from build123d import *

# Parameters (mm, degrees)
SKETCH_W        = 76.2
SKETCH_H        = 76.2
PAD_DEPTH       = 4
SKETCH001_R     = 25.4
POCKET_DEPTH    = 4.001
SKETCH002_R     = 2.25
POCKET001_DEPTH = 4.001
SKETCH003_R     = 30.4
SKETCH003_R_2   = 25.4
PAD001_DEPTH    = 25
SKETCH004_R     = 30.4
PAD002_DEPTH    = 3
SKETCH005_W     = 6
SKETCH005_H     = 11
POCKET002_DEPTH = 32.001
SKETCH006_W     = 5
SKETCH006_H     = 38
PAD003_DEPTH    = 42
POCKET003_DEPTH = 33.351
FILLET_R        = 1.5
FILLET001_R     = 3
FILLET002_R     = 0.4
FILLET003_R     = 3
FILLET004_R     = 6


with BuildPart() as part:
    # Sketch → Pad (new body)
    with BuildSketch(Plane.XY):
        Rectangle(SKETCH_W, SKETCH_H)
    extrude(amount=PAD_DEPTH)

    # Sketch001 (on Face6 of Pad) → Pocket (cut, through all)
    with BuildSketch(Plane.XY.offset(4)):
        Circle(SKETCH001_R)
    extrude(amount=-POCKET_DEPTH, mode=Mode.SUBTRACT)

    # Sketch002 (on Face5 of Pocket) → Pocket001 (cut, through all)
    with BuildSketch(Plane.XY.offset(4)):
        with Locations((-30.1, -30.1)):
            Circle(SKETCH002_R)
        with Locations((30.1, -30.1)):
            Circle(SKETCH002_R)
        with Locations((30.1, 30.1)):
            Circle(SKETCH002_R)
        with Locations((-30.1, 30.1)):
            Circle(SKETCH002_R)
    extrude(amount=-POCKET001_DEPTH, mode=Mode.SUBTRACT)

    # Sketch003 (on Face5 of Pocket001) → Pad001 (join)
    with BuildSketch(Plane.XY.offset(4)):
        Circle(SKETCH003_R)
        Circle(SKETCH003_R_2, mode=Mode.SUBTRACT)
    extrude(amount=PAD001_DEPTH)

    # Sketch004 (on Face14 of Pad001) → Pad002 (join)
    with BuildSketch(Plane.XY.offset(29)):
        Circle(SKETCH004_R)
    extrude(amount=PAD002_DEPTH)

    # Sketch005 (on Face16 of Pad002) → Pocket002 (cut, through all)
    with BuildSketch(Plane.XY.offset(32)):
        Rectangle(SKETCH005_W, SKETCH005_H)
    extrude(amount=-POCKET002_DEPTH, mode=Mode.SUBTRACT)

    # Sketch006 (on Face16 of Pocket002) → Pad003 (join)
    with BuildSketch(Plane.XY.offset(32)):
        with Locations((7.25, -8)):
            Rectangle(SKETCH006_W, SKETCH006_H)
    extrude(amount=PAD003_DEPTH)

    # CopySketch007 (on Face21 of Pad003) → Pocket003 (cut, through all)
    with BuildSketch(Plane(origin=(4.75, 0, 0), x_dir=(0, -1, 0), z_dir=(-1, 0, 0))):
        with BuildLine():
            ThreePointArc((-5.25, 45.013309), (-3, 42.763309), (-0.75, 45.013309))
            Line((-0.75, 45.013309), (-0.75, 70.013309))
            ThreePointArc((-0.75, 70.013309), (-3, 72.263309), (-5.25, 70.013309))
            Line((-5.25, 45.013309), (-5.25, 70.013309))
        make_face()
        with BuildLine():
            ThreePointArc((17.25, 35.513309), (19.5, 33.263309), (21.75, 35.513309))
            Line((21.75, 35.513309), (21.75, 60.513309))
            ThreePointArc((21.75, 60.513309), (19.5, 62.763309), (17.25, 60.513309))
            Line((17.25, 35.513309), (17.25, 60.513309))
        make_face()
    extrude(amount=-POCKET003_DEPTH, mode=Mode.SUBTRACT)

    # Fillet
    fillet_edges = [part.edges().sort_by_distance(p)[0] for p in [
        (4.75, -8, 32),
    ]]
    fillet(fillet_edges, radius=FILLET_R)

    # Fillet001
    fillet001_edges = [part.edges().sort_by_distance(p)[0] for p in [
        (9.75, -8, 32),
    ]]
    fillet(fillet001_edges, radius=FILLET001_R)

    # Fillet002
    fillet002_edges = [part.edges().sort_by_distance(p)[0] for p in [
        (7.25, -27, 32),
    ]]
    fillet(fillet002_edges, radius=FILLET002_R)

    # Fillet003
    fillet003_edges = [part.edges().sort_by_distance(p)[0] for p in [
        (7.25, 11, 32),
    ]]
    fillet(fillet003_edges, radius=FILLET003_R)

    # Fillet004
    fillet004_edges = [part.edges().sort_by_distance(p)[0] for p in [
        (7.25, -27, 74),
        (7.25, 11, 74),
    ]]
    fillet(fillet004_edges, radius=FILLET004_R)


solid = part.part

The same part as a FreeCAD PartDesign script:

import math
import FreeCAD as App
import Part
import Sketcher
from FreeCAD import Vector


def edges_at(feature, points):
    """Names of the edges that pass closest to the given points."""
    edges = feature.Shape.Edges
    near = lambda p: min(range(len(edges)), key=lambda i: edges[i].distToShape(Part.Vertex(*p))[0])
    return sorted({f"Edge{near(p) + 1}" for p in points})


def add_polygon(sketch, points):
    """Adds a closed chain of lines whose ends are joined by coincident constraints."""
    first, n = sketch.GeometryCount, len(points)
    for a, b in zip(points, points[1:] + points[:1]):
        sketch.addGeometry(Part.LineSegment(App.Vector(*a, 0), App.Vector(*b, 0)), False)
    for i in range(n):
        sketch.addConstraint(Sketcher.Constraint("Coincident", first + i, 2, first + (i + 1) % n, 1))

doc = App.newDocument("Part")
body = doc.addObject("PartDesign::Body", "Body")

sketch1 = body.newObject("Sketcher::SketchObject", "Sketch")
sketch1.AttachmentSupport = (doc.getObject("XY_Plane"), [""])
sketch1.MapMode = "FlatFace"
add_polygon(sketch1, [(-38, 38), (-38, -38), (38, -38), (38, 38)])
sketch1.addConstraint([
    Sketcher.Constraint("Vertical", 0),
    Sketcher.Constraint("Horizontal", 1),
    Sketcher.Constraint("Vertical", 2),
    Sketcher.Constraint("Horizontal", 3),
    Sketcher.Constraint("Symmetric", 0, 2, 2, 2, -1, 1),
    Sketcher.Constraint("Equal", 3, 0),
    Sketcher.Constraint("DistanceX", 1, 1, 1, 2, 76.2),
])
pad1 = body.newObject("PartDesign::Pad", "Pad")
pad1.Profile = sketch1
pad1.Length = 4

sketch2 = body.newObject("Sketcher::SketchObject", "Sketch001")
sketch2.AttachmentSupport = (doc.getObject("XY_Plane"), [""])
sketch2.MapMode = "FlatFace"
sketch2.AttachmentOffset = App.Placement(Vector(0, 0, 4), App.Rotation())
sketch2.addGeometry(Part.Circle(Vector(0, 0, 0), Vector(0, 0, 1), 25), False)
sketch2.addConstraint([
    Sketcher.Constraint("Coincident", 0, 3, -1, 1),
    Sketcher.Constraint("Diameter", 0, 50.8),
])
pocket1 = body.newObject("PartDesign::Pocket", "Pocket")
pocket1.Profile = sketch2
pocket1.Type = "ThroughAll"

sketch3 = body.newObject("Sketcher::SketchObject", "Sketch002")
sketch3.AttachmentSupport = (doc.getObject("XY_Plane"), [""])
sketch3.MapMode = "FlatFace"
sketch3.AttachmentOffset = App.Placement(Vector(0, 0, 4), App.Rotation())
sketch3.addGeometry([
    Part.Circle(Vector(-30.1, -30.1, 0), Vector(0, 0, 1), 2.2),
    Part.Circle(Vector(30.1, -30.1, 0), Vector(0, 0, 1), 2.2),
    Part.Circle(Vector(30.1, 30.1, 0), Vector(0, 0, 1), 2.2),
    Part.Circle(Vector(-30.1, 30.1, 0), Vector(0, 0, 1), 2.2),
], False)
sketch3.addConstraint([
    Sketcher.Constraint("Equal", 0, 1),
    Sketcher.Constraint("Equal", 1, 2),
    Sketcher.Constraint("Equal", 2, 3),
    Sketcher.Constraint("Symmetric", 0, 3, 2, 3, -1, 1),
    Sketcher.Constraint("Symmetric", 1, 3, 3, 3, -1, 1),
    Sketcher.Constraint("Symmetric", 0, 3, 1, 3, -2),
    Sketcher.Constraint("Diameter", 0, 4.5),
    Sketcher.Constraint("DistanceX", 0, 3, -1, 1, 30.1),
    Sketcher.Constraint("DistanceY", 0, 3, -1, 1, 30.1),
])
pocket2 = body.newObject("PartDesign::Pocket", "Pocket001")
pocket2.Profile = sketch3
pocket2.Type = "ThroughAll"

sketch4 = body.newObject("Sketcher::SketchObject", "Sketch003")
sketch4.AttachmentSupport = (doc.getObject("XY_Plane"), [""])
sketch4.MapMode = "FlatFace"
sketch4.AttachmentOffset = App.Placement(Vector(0, 0, 4), App.Rotation())
sketch4.addGeometry([
    Part.Circle(Vector(0, 0, 0), Vector(0, 0, 1), 30),
    Part.Circle(Vector(0, 0, 0), Vector(0, 0, 1), 25),
], False)
sketch4.addConstraint([
    Sketcher.Constraint("Coincident", 0, 3, -1, 1),
    Sketcher.Constraint("Coincident", 1, 3, -1, 1),
    Sketcher.Constraint("Diameter", 0, 60.8),
    Sketcher.Constraint("Diameter", 1, 50.8),
])
pad2 = body.newObject("PartDesign::Pad", "Pad001")
pad2.Profile = sketch4
pad2.Length = 25

sketch5 = body.newObject("Sketcher::SketchObject", "Sketch004")
sketch5.AttachmentSupport = (doc.getObject("XY_Plane"), [""])
sketch5.MapMode = "FlatFace"
sketch5.AttachmentOffset = App.Placement(Vector(0, 0, 29), App.Rotation())
sketch5.addGeometry(Part.Circle(Vector(0, 0, 0), Vector(0, 0, 1), 30), False)
sketch5.addConstraint([
    Sketcher.Constraint("Coincident", 0, 3, -1, 1),
    Sketcher.Constraint("Diameter", 0, 60.8),
])
pad3 = body.newObject("PartDesign::Pad", "Pad002")
pad3.Profile = sketch5
pad3.Length = 3

sketch6 = body.newObject("Sketcher::SketchObject", "Sketch005")
sketch6.AttachmentSupport = (doc.getObject("XY_Plane"), [""])
sketch6.MapMode = "FlatFace"
sketch6.AttachmentOffset = App.Placement(Vector(0, 0, 32), App.Rotation())
add_polygon(sketch6, [(-3, 6), (-3, -6), (3, -6), (3, 6)])
sketch6.addConstraint([
    Sketcher.Constraint("Vertical", 0),
    Sketcher.Constraint("Horizontal", 1),
    Sketcher.Constraint("Vertical", 2),
    Sketcher.Constraint("Horizontal", 3),
    Sketcher.Constraint("Symmetric", 0, 2, 2, 2, -1, 1),
    Sketcher.Constraint("DistanceX", 1, 1, 1, 2, 6.0),
    Sketcher.Constraint("DistanceY", 0, 2, 0, 1, 11.0),
])
pocket3 = body.newObject("PartDesign::Pocket", "Pocket002")
pocket3.Profile = sketch6
pocket3.Type = "ThroughAll"

sketch7 = body.newObject("Sketcher::SketchObject", "Sketch006")
sketch7.AttachmentSupport = (doc.getObject("XY_Plane"), [""])
sketch7.MapMode = "FlatFace"
sketch7.AttachmentOffset = App.Placement(Vector(0, 0, 32), App.Rotation())
add_polygon(sketch7, [(5, 11), (5, -27), (10, -27), (10, 11)])
sketch7.addConstraint([
    Sketcher.Constraint("Vertical", 0),
    Sketcher.Constraint("Horizontal", 1),
    Sketcher.Constraint("Vertical", 2),
    Sketcher.Constraint("Horizontal", 3),
    Sketcher.Constraint("DistanceX", 1, 1, 1, 2, 5.0),
    Sketcher.Constraint("DistanceY", 0, 2, 0, 1, 38.0),
    Sketcher.Constraint("DistanceY", 0, 2, -1, 1, 27.0),
    Sketcher.Constraint("DistanceX", -1, 1, 0, 2, 4.75),
])
pad4 = body.newObject("PartDesign::Pad", "Pad003")
pad4.Profile = sketch7
pad4.Length = 42

sketch8 = body.newObject("Sketcher::SketchObject", "Sketch007")
sketch8.AttachmentSupport = (doc.getObject("YZ_Plane"), [""])
sketch8.MapMode = "FlatFace"
sketch8.AttachmentOffset = App.Placement(Vector(0, 0, 4.75), App.Rotation())
sketch8.addGeometry([
    Part.ArcOfCircle(Part.Circle(Vector(3, 45, 0), Vector(0, 0, 1), 2.2), math.radians(180), math.radians(360)),
    Part.LineSegment(Vector(0.8, 45, 0), Vector(0.8, 70, 0)),
    Part.ArcOfCircle(Part.Circle(Vector(3, 70, 0), Vector(0, 0, 1), 2.2), math.radians(0), math.radians(180)),
    Part.LineSegment(Vector(5.2, 70, 0), Vector(5.2, 45, 0)),
    Part.ArcOfCircle(Part.Circle(Vector(-19.5, 35.5, 0), Vector(0, 0, 1), 2.2), math.radians(180), math.radians(360)),
    Part.LineSegment(Vector(-21.8, 35.5, 0), Vector(-21.8, 60.5, 0)),
    Part.ArcOfCircle(Part.Circle(Vector(-19.5, 60.5, 0), Vector(0, 0, 1), 2.2), math.radians(0), math.radians(180)),
    Part.LineSegment(Vector(-17.2, 60.5, 0), Vector(-17.2, 35.5, 0)),
], False)
sketch8.addConstraint([
    Sketcher.Constraint("Tangent", 0, 1, 1, 1),
    Sketcher.Constraint("Tangent", 1, 2, 2, 2),
    Sketcher.Constraint("Tangent", 2, 1, 3, 1),
    Sketcher.Constraint("Tangent", 3, 2, 0, 2),
    Sketcher.Constraint("Tangent", 4, 1, 5, 1),
    Sketcher.Constraint("Tangent", 5, 2, 6, 2),
    Sketcher.Constraint("Tangent", 6, 1, 7, 1),
    Sketcher.Constraint("Tangent", 7, 2, 4, 2),
    Sketcher.Constraint("Vertical", 1),
    Sketcher.Constraint("Vertical", 3),
    Sketcher.Constraint("Vertical", 5),
    Sketcher.Constraint("Vertical", 7),
    Sketcher.Constraint("Equal", 2, 4),
    Sketcher.Constraint("Equal", 3, 5),
    Sketcher.Constraint("DistanceY", 1, 1, 1, 2, 25.0),
    Sketcher.Constraint("Radius", 0, 2.25),
    Sketcher.Constraint("DistanceX", -1, 1, 0, 3, 3.0),
    Sketcher.Constraint("DistanceX", 4, 1, 3, 2, 27.0),
    Sketcher.Constraint("DistanceY", 4, 3, 0, 3, 9.5),
    Sketcher.Constraint("DistanceY", -1, 1, 0, 3, 45.013309),
])
pocket4 = body.newObject("PartDesign::Pocket", "Pocket003")
pocket4.Profile = sketch8
pocket4.Type = "ThroughAll"
pocket4.Reversed = True
doc.recompute()

fillet = body.newObject("PartDesign::Fillet", "Fillet")
fillet.Base = (pocket4, edges_at(pocket4, [(4.75, -8, 32)]))
fillet.Radius = 1.5
doc.recompute()

fillet2 = body.newObject("PartDesign::Fillet", "Fillet001")
fillet2.Base = (fillet, edges_at(fillet, [(9.75, -8, 32)]))
fillet2.Radius = 3
doc.recompute()

fillet3 = body.newObject("PartDesign::Fillet", "Fillet002")
fillet3.Base = (fillet2, edges_at(fillet2, [(8, -27, 32)]))
fillet3.Radius = 0.4
doc.recompute()

fillet4 = body.newObject("PartDesign::Fillet", "Fillet003")
fillet4.Base = (fillet3, edges_at(fillet3, [(8, 11, 32)]))
fillet4.Radius = 3
doc.recompute()

fillet5 = body.newObject("PartDesign::Fillet", "Fillet004")
fillet5.Base = (fillet4, edges_at(fillet4, [(7.25, -27, 74), (7.25, 11, 74)]))
fillet5.Radius = 6

doc.recompute()
